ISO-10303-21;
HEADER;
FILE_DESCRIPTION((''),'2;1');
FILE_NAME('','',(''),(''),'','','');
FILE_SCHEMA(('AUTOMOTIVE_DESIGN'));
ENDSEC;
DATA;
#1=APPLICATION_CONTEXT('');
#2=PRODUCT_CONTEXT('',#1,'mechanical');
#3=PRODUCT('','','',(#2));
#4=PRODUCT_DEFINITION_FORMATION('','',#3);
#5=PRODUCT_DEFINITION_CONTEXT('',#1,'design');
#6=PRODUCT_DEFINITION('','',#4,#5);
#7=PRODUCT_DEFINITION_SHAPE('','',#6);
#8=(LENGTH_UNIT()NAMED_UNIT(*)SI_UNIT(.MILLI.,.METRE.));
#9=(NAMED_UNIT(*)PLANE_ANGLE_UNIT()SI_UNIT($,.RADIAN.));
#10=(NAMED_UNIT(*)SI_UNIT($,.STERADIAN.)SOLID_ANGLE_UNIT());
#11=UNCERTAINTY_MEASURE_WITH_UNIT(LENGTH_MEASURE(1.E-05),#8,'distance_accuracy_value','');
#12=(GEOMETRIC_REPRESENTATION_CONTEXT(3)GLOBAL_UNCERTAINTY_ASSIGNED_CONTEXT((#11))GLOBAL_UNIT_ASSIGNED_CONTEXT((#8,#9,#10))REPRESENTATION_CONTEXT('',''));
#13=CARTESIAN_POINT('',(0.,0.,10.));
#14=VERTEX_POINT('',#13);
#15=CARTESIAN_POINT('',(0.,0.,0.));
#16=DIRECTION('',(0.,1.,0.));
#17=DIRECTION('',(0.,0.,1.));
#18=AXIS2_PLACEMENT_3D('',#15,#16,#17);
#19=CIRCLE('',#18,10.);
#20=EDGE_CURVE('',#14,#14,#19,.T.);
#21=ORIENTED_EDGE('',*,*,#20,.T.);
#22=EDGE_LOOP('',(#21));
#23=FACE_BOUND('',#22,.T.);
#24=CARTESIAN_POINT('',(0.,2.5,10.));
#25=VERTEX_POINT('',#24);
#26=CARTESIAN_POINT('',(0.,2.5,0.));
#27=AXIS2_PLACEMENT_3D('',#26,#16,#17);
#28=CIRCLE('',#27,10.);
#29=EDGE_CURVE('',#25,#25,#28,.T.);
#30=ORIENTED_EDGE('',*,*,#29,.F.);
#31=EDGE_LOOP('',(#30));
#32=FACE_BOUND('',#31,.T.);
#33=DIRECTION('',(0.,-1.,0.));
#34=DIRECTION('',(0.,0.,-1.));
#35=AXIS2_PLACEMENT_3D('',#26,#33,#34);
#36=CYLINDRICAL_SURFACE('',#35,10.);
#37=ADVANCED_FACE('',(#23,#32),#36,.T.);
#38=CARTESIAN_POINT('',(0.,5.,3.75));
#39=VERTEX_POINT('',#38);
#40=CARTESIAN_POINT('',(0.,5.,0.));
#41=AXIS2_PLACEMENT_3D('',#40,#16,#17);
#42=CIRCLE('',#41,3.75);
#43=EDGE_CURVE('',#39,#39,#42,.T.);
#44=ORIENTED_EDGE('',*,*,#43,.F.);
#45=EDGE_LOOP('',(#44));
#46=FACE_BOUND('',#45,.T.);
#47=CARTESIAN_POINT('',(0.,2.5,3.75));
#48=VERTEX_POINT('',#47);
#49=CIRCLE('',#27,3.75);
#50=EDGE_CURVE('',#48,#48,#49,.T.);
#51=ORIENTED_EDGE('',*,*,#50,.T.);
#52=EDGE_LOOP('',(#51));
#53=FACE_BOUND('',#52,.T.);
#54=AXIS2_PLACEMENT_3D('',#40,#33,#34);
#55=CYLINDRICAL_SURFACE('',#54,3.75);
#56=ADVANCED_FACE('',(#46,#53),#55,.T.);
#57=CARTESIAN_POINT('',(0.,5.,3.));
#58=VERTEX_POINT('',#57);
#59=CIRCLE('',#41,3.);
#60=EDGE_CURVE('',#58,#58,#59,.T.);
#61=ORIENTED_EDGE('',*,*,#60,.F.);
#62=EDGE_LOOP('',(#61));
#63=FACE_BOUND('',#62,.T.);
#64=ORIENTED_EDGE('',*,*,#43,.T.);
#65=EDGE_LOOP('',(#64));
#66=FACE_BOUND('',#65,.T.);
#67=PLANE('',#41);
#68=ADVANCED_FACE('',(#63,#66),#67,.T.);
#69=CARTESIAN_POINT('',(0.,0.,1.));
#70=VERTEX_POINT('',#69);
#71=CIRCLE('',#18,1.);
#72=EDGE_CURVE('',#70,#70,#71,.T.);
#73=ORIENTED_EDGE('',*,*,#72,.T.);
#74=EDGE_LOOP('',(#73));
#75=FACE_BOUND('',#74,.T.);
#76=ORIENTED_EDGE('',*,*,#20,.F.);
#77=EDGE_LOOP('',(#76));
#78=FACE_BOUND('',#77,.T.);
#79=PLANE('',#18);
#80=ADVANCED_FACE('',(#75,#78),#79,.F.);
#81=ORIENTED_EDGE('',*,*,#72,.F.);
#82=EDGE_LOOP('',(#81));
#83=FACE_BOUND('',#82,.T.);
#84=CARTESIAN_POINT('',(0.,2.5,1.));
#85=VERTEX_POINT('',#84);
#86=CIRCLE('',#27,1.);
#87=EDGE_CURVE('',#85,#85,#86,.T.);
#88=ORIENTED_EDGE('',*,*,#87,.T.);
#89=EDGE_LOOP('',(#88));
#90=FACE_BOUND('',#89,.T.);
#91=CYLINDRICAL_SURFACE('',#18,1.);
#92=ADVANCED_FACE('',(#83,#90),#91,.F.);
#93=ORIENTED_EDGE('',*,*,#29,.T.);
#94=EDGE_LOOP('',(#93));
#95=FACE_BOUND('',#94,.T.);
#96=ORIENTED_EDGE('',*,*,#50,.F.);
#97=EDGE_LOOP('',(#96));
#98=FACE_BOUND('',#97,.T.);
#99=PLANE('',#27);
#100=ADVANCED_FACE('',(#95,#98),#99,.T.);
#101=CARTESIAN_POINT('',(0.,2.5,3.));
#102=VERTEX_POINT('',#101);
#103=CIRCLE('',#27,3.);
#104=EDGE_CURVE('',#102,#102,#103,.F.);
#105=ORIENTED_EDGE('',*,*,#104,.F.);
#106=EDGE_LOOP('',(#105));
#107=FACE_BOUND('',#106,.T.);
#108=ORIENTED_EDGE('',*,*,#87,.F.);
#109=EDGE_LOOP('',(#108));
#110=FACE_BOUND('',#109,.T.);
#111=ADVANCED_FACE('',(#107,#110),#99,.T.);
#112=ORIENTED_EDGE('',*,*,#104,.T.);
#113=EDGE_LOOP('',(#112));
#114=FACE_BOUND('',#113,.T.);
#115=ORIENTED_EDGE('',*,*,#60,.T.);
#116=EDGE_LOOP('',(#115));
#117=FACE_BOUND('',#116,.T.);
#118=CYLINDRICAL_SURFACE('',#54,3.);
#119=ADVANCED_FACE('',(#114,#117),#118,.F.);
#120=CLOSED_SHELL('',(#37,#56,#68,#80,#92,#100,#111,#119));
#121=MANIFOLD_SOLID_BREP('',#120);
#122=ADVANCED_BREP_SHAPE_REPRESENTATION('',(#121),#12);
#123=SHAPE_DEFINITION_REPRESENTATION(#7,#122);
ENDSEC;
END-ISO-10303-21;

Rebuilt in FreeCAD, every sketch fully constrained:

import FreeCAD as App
import Part
import Sketcher

doc = App.newDocument("Part")
params = doc.addObject("Spreadsheet::Sheet", "Params")
for row, (alias, value) in enumerate([
    ("sketch1_diameter", "20 mm"),
    ("pad1_length", "2.5 mm"),
    ("sketch2_diameter", "6 mm"),
    ("sketch2_diameter2", "7.5 mm"),
    ("pad2_length", "2.5 mm"),
    ("sketch3_diameter", "2 mm"),
    ("pocket1_length", "2.5 mm"),
], start=1):
    params.set(f"A{row}", alias)
    params.set(f"B{row}", "=" + value)
    params.setAlias(f"B{row}", alias)

body = doc.addObject("PartDesign::Body", "Body")

# Sketch on XZ plane
sketch1 = doc.addObject("Sketcher::SketchObject", "Sketch")
body.addObject(sketch1)
sketch1.AttachmentSupport = (doc.XZ_Plane, [""])
sketch1.MapMode = "FlatFace"
sketch1.addGeometry(Part.Circle(App.Vector(0, 0, 0), App.Vector(0, 0, 1), 10), False)
sketch1.addConstraint(Sketcher.Constraint("Coincident", 0, 3, -1, 1))
sketch1.addConstraint(Sketcher.Constraint("Diameter", 0, 20.0))
sketch1.setExpression("Constraints[1]", "Params.sketch1_diameter")
pad1 = doc.addObject("PartDesign::Pad", "Pad")
body.addObject(pad1)
pad1.Profile = sketch1
pad1.setExpression("Length", "Params.pad1_length")
pad1.Reversed = True

# Sketch on XZ plane
sketch2 = doc.addObject("Sketcher::SketchObject", "Sketch001")
body.addObject(sketch2)
sketch2.AttachmentSupport = (doc.XZ_Plane, [""])
sketch2.MapMode = "FlatFace"
sketch2.AttachmentOffset = App.Placement(App.Vector(0, 0, -2.5), App.Rotation())
sketch2.addGeometry(Part.Circle(App.Vector(0, 0, 0), App.Vector(0, 0, 1), 3.75), False)
sketch2.addGeometry(Part.Circle(App.Vector(0, 0, 0), App.Vector(0, 0, 1), 3), False)
sketch2.addConstraint(Sketcher.Constraint("Coincident", 0, 3, -1, 1))
sketch2.addConstraint(Sketcher.Constraint("Coincident", 1, 3, -1, 1))
sketch2.addConstraint(Sketcher.Constraint("Diameter", 1, 6.0))
sketch2.addConstraint(Sketcher.Constraint("Diameter", 0, 7.5))
sketch2.setExpression("Constraints[2]", "Params.sketch2_diameter")
sketch2.setExpression("Constraints[3]", "Params.sketch2_diameter2")
pad2 = doc.addObject("PartDesign::Pad", "Pad001")
body.addObject(pad2)
pad2.Profile = sketch2
pad2.setExpression("Length", "Params.pad2_length")
pad2.Reversed = True

# Sketch on XZ plane
sketch3 = doc.addObject("Sketcher::SketchObject", "Sketch002")
body.addObject(sketch3)
sketch3.AttachmentSupport = (doc.XZ_Plane, [""])
sketch3.MapMode = "FlatFace"
sketch3.AttachmentOffset = App.Placement(App.Vector(0, 0, -2.5), App.Rotation())
sketch3.addGeometry(Part.Circle(App.Vector(0, 0, 0), App.Vector(0, 0, 1), 1), False)
sketch3.addConstraint(Sketcher.Constraint("Coincident", 0, 3, -1, 1))
sketch3.addConstraint(Sketcher.Constraint("Diameter", 0, 2.0))
sketch3.setExpression("Constraints[1]", "Params.sketch3_diameter")
pocket1 = doc.addObject("PartDesign::Pocket", "Pocket")
body.addObject(pocket1)
pocket1.Profile = sketch3
pocket1.setExpression("Length", "Params.pocket1_length")
pocket1.Reversed = True

doc.recompute()
